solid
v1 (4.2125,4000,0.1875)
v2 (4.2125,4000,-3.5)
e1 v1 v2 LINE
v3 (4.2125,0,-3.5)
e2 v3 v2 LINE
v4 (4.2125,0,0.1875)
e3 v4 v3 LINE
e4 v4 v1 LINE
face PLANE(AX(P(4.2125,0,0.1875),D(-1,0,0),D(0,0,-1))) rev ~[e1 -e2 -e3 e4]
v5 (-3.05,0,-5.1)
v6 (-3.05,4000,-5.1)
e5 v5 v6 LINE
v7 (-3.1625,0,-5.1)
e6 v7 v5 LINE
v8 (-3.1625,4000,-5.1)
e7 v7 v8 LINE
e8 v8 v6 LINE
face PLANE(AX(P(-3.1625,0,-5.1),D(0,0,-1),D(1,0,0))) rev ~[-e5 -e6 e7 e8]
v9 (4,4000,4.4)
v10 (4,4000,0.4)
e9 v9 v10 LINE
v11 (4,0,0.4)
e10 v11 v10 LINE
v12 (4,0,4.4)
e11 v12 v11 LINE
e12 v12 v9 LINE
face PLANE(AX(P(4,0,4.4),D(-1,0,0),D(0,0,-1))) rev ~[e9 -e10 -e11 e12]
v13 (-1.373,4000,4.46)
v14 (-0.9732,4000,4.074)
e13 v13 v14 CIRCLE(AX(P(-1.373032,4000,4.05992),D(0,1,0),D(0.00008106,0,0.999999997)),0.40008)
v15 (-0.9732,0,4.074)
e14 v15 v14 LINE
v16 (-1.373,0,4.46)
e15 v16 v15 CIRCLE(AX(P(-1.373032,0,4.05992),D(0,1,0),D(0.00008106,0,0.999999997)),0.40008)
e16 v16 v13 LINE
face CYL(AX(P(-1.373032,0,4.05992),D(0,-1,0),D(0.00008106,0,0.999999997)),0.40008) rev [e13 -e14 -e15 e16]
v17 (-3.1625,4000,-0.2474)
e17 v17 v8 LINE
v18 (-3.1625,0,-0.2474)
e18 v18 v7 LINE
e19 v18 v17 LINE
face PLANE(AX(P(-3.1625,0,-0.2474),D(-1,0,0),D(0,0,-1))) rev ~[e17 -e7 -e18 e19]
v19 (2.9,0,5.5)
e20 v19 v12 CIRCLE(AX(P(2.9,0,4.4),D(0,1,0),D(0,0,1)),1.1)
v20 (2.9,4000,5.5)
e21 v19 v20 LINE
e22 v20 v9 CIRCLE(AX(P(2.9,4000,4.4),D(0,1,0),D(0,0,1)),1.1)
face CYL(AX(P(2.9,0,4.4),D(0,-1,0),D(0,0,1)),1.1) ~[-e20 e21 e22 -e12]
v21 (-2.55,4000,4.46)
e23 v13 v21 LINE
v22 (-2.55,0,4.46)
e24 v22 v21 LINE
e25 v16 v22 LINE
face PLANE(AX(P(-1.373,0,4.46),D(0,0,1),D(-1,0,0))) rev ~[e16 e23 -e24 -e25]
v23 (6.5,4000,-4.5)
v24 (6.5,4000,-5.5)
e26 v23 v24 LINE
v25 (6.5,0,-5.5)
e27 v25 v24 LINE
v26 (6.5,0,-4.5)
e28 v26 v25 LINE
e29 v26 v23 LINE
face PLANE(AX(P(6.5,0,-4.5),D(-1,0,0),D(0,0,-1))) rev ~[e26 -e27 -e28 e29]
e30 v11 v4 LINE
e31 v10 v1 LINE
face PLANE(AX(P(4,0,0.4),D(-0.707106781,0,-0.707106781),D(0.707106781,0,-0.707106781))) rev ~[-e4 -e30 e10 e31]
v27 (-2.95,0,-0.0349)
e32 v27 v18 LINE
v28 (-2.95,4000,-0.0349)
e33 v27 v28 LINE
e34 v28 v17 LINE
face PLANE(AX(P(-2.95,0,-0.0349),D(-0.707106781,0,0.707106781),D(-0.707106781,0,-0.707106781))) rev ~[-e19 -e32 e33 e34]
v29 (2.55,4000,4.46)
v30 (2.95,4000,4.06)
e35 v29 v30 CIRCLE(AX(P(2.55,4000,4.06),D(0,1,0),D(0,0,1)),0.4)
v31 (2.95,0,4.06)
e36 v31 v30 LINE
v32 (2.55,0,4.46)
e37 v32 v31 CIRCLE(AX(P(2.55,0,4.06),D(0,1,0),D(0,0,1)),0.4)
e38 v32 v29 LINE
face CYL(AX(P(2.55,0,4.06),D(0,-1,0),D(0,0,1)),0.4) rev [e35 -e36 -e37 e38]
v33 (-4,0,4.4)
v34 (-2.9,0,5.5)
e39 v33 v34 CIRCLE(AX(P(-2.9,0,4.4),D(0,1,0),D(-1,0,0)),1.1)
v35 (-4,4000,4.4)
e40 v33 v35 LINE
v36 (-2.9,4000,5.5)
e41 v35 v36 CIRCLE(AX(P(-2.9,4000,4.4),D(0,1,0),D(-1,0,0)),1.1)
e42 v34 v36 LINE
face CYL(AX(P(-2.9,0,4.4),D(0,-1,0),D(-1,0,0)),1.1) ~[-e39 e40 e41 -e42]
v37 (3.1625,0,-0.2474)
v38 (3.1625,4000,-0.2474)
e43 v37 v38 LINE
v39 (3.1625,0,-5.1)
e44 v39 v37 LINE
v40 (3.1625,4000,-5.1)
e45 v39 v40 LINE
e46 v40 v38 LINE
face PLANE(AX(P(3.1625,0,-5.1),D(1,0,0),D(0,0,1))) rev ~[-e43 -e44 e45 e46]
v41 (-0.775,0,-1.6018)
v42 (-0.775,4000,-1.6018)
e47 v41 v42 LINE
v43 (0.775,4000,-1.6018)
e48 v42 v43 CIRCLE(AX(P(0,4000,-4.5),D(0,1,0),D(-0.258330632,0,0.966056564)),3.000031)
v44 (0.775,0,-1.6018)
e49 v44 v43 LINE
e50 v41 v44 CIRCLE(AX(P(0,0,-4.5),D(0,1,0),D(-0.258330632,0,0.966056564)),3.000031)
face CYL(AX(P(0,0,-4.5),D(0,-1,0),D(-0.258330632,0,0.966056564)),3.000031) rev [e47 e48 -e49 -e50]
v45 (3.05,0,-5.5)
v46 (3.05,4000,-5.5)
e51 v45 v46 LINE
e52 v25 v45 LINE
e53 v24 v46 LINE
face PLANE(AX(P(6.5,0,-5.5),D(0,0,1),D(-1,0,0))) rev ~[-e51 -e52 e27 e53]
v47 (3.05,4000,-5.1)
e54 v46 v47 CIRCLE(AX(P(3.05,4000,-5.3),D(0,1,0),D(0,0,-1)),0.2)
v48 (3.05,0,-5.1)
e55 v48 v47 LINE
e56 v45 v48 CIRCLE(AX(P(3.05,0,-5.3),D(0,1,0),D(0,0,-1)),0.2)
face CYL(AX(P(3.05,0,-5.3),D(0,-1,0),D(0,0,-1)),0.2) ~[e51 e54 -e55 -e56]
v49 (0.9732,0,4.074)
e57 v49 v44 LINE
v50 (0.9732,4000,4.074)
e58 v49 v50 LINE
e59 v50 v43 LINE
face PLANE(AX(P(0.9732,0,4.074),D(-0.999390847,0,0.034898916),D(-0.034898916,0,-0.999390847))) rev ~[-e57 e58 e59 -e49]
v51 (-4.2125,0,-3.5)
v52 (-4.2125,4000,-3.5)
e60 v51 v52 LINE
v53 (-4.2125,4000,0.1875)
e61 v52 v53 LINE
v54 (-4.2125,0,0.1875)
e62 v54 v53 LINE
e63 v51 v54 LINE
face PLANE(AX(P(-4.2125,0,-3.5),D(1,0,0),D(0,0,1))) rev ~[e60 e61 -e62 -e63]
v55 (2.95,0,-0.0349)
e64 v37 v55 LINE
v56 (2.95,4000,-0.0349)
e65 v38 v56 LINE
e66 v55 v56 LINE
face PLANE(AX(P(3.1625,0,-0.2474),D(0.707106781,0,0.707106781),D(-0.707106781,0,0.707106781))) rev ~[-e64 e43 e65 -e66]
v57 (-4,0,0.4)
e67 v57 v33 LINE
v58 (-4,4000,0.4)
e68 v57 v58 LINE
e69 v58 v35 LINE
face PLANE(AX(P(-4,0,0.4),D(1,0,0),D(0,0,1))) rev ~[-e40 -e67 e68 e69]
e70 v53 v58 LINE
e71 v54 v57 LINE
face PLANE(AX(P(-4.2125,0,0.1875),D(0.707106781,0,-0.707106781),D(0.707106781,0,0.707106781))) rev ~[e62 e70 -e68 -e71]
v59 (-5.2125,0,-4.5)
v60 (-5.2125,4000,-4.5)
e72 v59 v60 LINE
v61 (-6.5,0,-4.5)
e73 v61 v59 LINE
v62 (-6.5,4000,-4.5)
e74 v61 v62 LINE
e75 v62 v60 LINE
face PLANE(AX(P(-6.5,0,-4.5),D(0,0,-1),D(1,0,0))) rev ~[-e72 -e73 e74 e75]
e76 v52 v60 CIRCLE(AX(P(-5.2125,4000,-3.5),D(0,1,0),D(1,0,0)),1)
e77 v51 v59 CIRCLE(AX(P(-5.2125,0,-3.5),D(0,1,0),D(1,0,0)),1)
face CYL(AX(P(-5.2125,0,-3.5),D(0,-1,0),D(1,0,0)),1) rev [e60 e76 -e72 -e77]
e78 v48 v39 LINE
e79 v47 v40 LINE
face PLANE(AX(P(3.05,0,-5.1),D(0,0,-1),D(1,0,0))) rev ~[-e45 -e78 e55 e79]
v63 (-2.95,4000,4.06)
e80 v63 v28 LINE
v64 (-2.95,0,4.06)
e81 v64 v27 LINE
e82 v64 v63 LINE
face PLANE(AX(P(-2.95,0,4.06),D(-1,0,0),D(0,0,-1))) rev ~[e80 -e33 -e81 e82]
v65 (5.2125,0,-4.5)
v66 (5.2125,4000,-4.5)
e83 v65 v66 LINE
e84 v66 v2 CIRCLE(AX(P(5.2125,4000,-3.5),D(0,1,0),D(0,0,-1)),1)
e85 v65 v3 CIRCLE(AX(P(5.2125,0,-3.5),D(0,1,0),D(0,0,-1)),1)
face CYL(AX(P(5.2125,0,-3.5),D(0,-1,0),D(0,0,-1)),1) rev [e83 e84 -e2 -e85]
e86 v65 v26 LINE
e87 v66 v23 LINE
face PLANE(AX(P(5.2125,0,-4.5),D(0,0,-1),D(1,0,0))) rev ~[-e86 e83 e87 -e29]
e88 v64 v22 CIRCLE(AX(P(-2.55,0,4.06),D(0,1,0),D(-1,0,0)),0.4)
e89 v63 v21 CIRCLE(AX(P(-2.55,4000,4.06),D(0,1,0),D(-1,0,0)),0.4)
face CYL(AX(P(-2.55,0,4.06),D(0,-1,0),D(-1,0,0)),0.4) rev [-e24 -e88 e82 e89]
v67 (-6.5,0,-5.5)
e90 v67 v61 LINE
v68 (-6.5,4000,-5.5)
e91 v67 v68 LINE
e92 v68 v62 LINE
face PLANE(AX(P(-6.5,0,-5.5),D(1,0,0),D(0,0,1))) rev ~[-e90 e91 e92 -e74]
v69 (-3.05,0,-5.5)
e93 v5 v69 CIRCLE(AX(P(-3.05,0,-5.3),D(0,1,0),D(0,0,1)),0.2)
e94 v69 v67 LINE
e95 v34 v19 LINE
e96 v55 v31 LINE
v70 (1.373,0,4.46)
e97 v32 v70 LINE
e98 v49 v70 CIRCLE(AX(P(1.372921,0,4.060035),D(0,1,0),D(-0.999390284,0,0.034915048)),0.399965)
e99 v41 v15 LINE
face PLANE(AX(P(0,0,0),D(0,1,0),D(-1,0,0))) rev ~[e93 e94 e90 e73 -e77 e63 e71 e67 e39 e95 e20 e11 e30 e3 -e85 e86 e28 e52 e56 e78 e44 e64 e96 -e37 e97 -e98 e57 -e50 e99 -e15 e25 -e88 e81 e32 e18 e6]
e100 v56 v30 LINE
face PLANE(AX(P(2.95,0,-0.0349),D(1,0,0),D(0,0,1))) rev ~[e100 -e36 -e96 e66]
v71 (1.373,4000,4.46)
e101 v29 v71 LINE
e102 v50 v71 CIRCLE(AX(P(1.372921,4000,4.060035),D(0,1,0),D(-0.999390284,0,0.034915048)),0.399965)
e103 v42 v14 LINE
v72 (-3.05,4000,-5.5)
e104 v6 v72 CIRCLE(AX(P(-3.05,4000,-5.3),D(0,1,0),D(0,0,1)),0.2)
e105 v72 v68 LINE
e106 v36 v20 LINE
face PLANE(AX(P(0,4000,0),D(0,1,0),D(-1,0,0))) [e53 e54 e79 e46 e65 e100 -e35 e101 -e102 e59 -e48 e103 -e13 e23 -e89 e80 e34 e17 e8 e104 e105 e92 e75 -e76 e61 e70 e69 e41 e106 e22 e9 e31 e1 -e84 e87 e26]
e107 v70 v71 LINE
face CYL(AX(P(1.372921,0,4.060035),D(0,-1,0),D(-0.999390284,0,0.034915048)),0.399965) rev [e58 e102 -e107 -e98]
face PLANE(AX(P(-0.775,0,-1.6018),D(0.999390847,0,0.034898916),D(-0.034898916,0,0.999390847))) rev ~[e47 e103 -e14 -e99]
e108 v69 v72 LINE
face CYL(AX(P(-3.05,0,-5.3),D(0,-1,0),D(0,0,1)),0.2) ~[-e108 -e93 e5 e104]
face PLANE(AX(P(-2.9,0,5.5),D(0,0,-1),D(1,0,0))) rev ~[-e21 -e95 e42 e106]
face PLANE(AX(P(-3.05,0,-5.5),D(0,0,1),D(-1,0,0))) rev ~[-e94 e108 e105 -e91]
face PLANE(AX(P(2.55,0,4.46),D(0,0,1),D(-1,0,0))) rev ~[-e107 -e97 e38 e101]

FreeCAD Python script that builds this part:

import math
import FreeCAD as App
import Part
import Sketcher

V = App.Vector
Q = App.Units.Quantity

doc = App.newDocument("Part")
body = doc.addObject("PartDesign::Body", "Body")

# Sketch on XZ plane
sketch1 = body.newObject("Sketcher::SketchObject", "Sketch")
sketch1.AttachmentSupport = (doc.getObject("XZ_Plane"), [""])
sketch1.MapMode = "FlatFace"
sketch1.addGeometry(Part.LineSegment(V(6.5, -5.5, 0), V(3.05, -5.5, 0)), False)
sketch1.addGeometry(Part.ArcOfCircle(Part.Circle(V(3.05, -5.3, 0), V(0, 0, 1), 0.2), math.radians(90), math.radians(270)), False)
sketch1.addGeometry(Part.LineSegment(V(3.05, -5.1, 0), V(3.16, -5.1, 0)), False)
sketch1.addGeometry(Part.LineSegment(V(3.16, -5.1, 0), V(3.16, -0.25, 0)), False)
sketch1.addGeometry(Part.LineSegment(V(3.16, -0.25, 0), V(2.95, -0.03, 0)), False)
sketch1.addGeometry(Part.LineSegment(V(2.95, -0.03, 0), V(2.95, 4.06, 0)), False)
sketch1.addGeometry(Part.ArcOfCircle(Part.Circle(V(2.55, 4.06, 0), V(0, 0, 1), 0.4), math.radians(0), math.radians(90)), False)
sketch1.addGeometry(Part.LineSegment(V(2.55, 4.46, 0), V(1.37, 4.46, 0)), False)
sketch1.addGeometry(Part.ArcOfCircle(Part.Circle(V(1.37, 4.06, 0), V(0, 0, 1), 0.4), math.radians(90), math.radians(178)), False)
sketch1.addGeometry(Part.LineSegment(V(0.97, 4.07, 0), V(0.78, -1.6, 0)), False)
sketch1.addGeometry(Part.ArcOfCircle(Part.Circle(V(0, -4.5, 0), V(0, 0, 1), 3), math.radians(75), math.radians(105)), False)
sketch1.addGeometry(Part.LineSegment(V(-0.78, -1.6, 0), V(-0.97, 4.07, 0)), False)
sketch1.addGeometry(Part.ArcOfCircle(Part.Circle(V(-1.37, 4.06, 0), V(0, 0, 1), 0.4), math.radians(2), math.radians(90)), False)
sketch1.addGeometry(Part.LineSegment(V(-1.37, 4.46, 0), V(-2.55, 4.46, 0)), False)
sketch1.addGeometry(Part.ArcOfCircle(Part.Circle(V(-2.55, 4.06, 0), V(0, 0, 1), 0.4), math.radians(90), math.radians(180)), False)
sketch1.addGeometry(Part.LineSegment(V(-2.95, 4.06, 0), V(-2.95, -0.03, 0)), False)
sketch1.addGeometry(Part.LineSegment(V(-2.95, -0.03, 0), V(-3.16, -0.25, 0)), False)
sketch1.addGeometry(Part.LineSegment(V(-3.16, -0.25, 0), V(-3.16, -5.1, 0)), False)
sketch1.addGeometry(Part.LineSegment(V(-3.16, -5.1, 0), V(-3.05, -5.1, 0)), False)
sketch1.addGeometry(Part.ArcOfCircle(Part.Circle(V(-3.05, -5.3, 0), V(0, 0, 1), 0.2), math.radians(-90), math.radians(90)), False)
sketch1.addGeometry(Part.LineSegment(V(-3.05, -5.5, 0), V(-6.5, -5.5, 0)), False)
sketch1.addGeometry(Part.LineSegment(V(-6.5, -5.5, 0), V(-6.5, -4.5, 0)), False)
sketch1.addGeometry(Part.LineSegment(V(-6.5, -4.5, 0), V(-5.21, -4.5, 0)), False)
sketch1.addGeometry(Part.ArcOfCircle(Part.Circle(V(-5.21, -3.5, 0), V(0, 0, 1), 1), math.radians(-90), math.radians(0)), False)
sketch1.addGeometry(Part.LineSegment(V(-4.21, -3.5, 0), V(-4.21, 0.19, 0)), False)
sketch1.addGeometry(Part.LineSegment(V(-4.21, 0.19, 0), V(-4, 0.4, 0)), False)
sketch1.addGeometry(Part.LineSegment(V(-4, 0.4, 0), V(-4, 4.4, 0)), False)
sketch1.addGeometry(Part.ArcOfCircle(Part.Circle(V(-2.9, 4.4, 0), V(0, 0, 1), 1.1), math.radians(90), math.radians(180)), False)
sketch1.addGeometry(Part.LineSegment(V(-2.9, 5.5, 0), V(2.9, 5.5, 0)), False)
sketch1.addGeometry(Part.ArcOfCircle(Part.Circle(V(2.9, 4.4, 0), V(0, 0, 1), 1.1), math.radians(0), math.radians(90)), False)
sketch1.addGeometry(Part.LineSegment(V(4, 4.4, 0), V(4, 0.4, 0)), False)
sketch1.addGeometry(Part.LineSegment(V(4, 0.4, 0), V(4.21, 0.19, 0)), False)
sketch1.addGeometry(Part.LineSegment(V(4.21, 0.19, 0), V(4.21, -3.5, 0)), False)
sketch1.addGeometry(Part.ArcOfCircle(Part.Circle(V(5.21, -3.5, 0), V(0, 0, 1), 1), math.radians(180), math.radians(270)), False)
sketch1.addGeometry(Part.LineSegment(V(5.21, -4.5, 0), V(6.5, -4.5, 0)), False)
sketch1.addGeometry(Part.LineSegment(V(6.5, -4.5, 0), V(6.5, -5.5, 0)), False)
sketch1.addConstraint(Sketcher.Constraint("Tangent", 0, 2, 1, 2))
sketch1.addConstraint(Sketcher.Constraint("Tangent", 1, 1, 2, 1))
sketch1.addConstraint(Sketcher.Constraint("Coincident", 2, 2, 3, 1))
sketch1.addConstraint(Sketcher.Constraint("Coincident", 3, 2, 4, 1))
sketch1.addConstraint(Sketcher.Constraint("Coincident", 4, 2, 5, 1))
sketch1.addConstraint(Sketcher.Constraint("Tangent", 5, 2, 6, 1))
sketch1.addConstraint(Sketcher.Constraint("Tangent", 6, 2, 7, 1))
sketch1.addConstraint(Sketcher.Constraint("Tangent", 7, 2, 8, 1))
sketch1.addConstraint(Sketcher.Constraint("Tangent", 8, 2, 9, 1))
sketch1.addConstraint(Sketcher.Constraint("Coincident", 9, 2, 10, 1))
sketch1.addConstraint(Sketcher.Constraint("Coincident", 10, 2, 11, 1))
sketch1.addConstraint(Sketcher.Constraint("Tangent", 11, 2, 12, 1))
sketch1.addConstraint(Sketcher.Constraint("Tangent", 12, 2, 13, 1))
sketch1.addConstraint(Sketcher.Constraint("Tangent", 13, 2, 14, 1))
sketch1.addConstraint(Sketcher.Constraint("Tangent", 14, 2, 15, 1))
sketch1.addConstraint(Sketcher.Constraint("Coincident", 15, 2, 16, 1))
sketch1.addConstraint(Sketcher.Constraint("Coincident", 16, 2, 17, 1))
sketch1.addConstraint(Sketcher.Constraint("Coincident", 17, 2, 18, 1))
sketch1.addConstraint(Sketcher.Constraint("Tangent", 18, 2, 19, 2))
sketch1.addConstraint(Sketcher.Constraint("Tangent", 19, 1, 20, 1))
sketch1.addConstraint(Sketcher.Constraint("Coincident", 20, 2, 21, 1))
sketch1.addConstraint(Sketcher.Constraint("Coincident", 21, 2, 22, 1))
sketch1.addConstraint(Sketcher.Constraint("Tangent", 22, 2, 23, 1))
sketch1.addConstraint(Sketcher.Constraint("Tangent", 23, 2, 24, 1))
sketch1.addConstraint(Sketcher.Constraint("Coincident", 24, 2, 25, 1))
sketch1.addConstraint(Sketcher.Constraint("Coincident", 25, 2, 26, 1))
sketch1.addConstraint(Sketcher.Constraint("Tangent", 26, 2, 27, 2))
sketch1.addConstraint(Sketcher.Constraint("Tangent", 27, 1, 28, 1))
sketch1.addConstraint(Sketcher.Constraint("Tangent", 28, 2, 29, 2))
sketch1.addConstraint(Sketcher.Constraint("Tangent", 29, 1, 30, 1))
sketch1.addConstraint(Sketcher.Constraint("Coincident", 30, 2, 31, 1))
sketch1.addConstraint(Sketcher.Constraint("Coincident", 31, 2, 32, 1))
sketch1.addConstraint(Sketcher.Constraint("Tangent", 32, 2, 33, 1))
sketch1.addConstraint(Sketcher.Constraint("Tangent", 33, 2, 34, 1))
sketch1.addConstraint(Sketcher.Constraint("Coincident", 34, 2, 35, 1))
sketch1.addConstraint(Sketcher.Constraint("Coincident", 35, 2, 0, 1))
sketch1.addConstraint(Sketcher.Constraint("Horizontal", 0))
sketch1.addConstraint(Sketcher.Constraint("Horizontal", 2))
sketch1.addConstraint(Sketcher.Constraint("Vertical", 3))
sketch1.addConstraint(Sketcher.Constraint("Vertical", 5))
sketch1.addConstraint(Sketcher.Constraint("Horizontal", 7))
sketch1.addConstraint(Sketcher.Constraint("Horizontal", 13))
sketch1.addConstraint(Sketcher.Constraint("Vertical", 15))
sketch1.addConstraint(Sketcher.Constraint("Vertical", 17))
sketch1.addConstraint(Sketcher.Constraint("Horizontal", 18))
sketch1.addConstraint(Sketcher.Constraint("Horizontal", 20))
sketch1.addConstraint(Sketcher.Constraint("Vertical", 21))
sketch1.addConstraint(Sketcher.Constraint("Horizontal", 22))
sketch1.addConstraint(Sketcher.Constraint("Vertical", 24))
sketch1.addConstraint(Sketcher.Constraint("Vertical", 26))
sketch1.addConstraint(Sketcher.Constraint("Horizontal", 28))
sketch1.addConstraint(Sketcher.Constraint("Vertical", 30))
sketch1.addConstraint(Sketcher.Constraint("Vertical", 32))
sketch1.addConstraint(Sketcher.Constraint("Horizontal", 34))
sketch1.addConstraint(Sketcher.Constraint("Vertical", 35))
sketch1.addConstraint(Sketcher.Constraint("Equal", 6, 8))
sketch1.addConstraint(Sketcher.Constraint("Equal", 8, 12))
sketch1.addConstraint(Sketcher.Constraint("Equal", 12, 14))
sketch1.addConstraint(Sketcher.Constraint("Equal", 1, 19))
sketch1.addConstraint(Sketcher.Constraint("Equal", 27, 29))
sketch1.addConstraint(Sketcher.Constraint("Equal", 23, 33))
sketch1.addConstraint(Sketcher.Constraint("Symmetric", 8, 3, 12, 3, -2))
sketch1.addConstraint(Sketcher.Constraint("Symmetric", 1, 3, 19, 3, -2))
sketch1.addConstraint(Sketcher.Constraint("Symmetric", 23, 3, 33, 3, -2))
sketch1.addConstraint(Sketcher.Constraint("Symmetric", 9, 2, 10, 2, -2))
sketch1.addConstraint(Sketcher.Constraint("Symmetric", 4, 2, 15, 2, -2))
sketch1.addConstraint(Sketcher.Constraint("Symmetric", 3, 2, 16, 2, -2))
sketch1.addConstraint(Sketcher.Constraint("Symmetric", 25, 2, 30, 2, -2))
sketch1.addConstraint(Sketcher.Constraint("Perpendicular", 4, 16))
sketch1.addConstraint(Sketcher.Constraint("Parallel", 16, 25))
sketch1.addConstraint(Sketcher.Constraint("Perpendicular", 25, 31))
sketch1.addConstraint(Sketcher.Constraint("Horizontal", 10, 3, 21, 2))
sketch1.addConstraint(Sketcher.Constraint("Equal", 0, 20))
sketch1.addConstraint(Sketcher.Constraint("Equal", 16, 25))
sketch1.addConstraint(Sketcher.Constraint("Radius", 10, 3.0))
sketch1.addConstraint(Sketcher.Constraint("Radius", 23, 1.0))
sketch1.addConstraint(Sketcher.Constraint("Radius", 1, 0.2))
sketch1.addConstraint(Sketcher.Constraint("Radius", 6, 0.4))
sketch1.addConstraint(Sketcher.Constraint("Radius", 27, 1.1))
sketch1.addConstraint(Sketcher.Constraint("DistanceY", 21, 1, 21, 2, 1.0))
sketch1.addConstraint(Sketcher.Constraint("DistanceY", 26, 1, 26, 2, 4.0))
sketch1.addConstraint(Sketcher.Constraint("Angle", 9, Q("-92 deg")))
sketch1.addConstraint(Sketcher.Constraint("DistanceX", 28, 1, 28, 2, 5.8))
sketch1.addConstraint(Sketcher.Constraint("DistanceX", 0, 2, 0, 1, 3.45))
sketch1.addConstraint(Sketcher.Constraint("DistanceY", 1, 3, -1, 1, 5.3))
sketch1.addConstraint(Sketcher.Constraint("DistanceY", -1, 1, 27, 3, 4.4))
sketch1.addConstraint(Sketcher.Constraint("DistanceX", 20, 2, -1, 1, 6.5))
sketch1.addConstraint(Sketcher.Constraint("DistanceX", 6, 3, 1, 3, 0.5))
sketch1.addConstraint(Sketcher.Constraint("DistanceX", 7, 2, 7, 1, 1.177))
sketch1.addConstraint(Sketcher.Constraint("DistanceY", 5, 1, 5, 2, 4.095))
sketch1.addConstraint(Sketcher.Constraint("DistanceY", -1, 1, 6, 3, 4.06))
sketch1.addConstraint(Sketcher.Constraint("DistanceX", 2, 1, 2, 2, 0.1125))
pad1 = body.newObject("PartDesign::Pad", "Pad")
pad1.Profile = sketch1
pad1.Length = 4000
pad1.Reversed = True

doc.recompute()
